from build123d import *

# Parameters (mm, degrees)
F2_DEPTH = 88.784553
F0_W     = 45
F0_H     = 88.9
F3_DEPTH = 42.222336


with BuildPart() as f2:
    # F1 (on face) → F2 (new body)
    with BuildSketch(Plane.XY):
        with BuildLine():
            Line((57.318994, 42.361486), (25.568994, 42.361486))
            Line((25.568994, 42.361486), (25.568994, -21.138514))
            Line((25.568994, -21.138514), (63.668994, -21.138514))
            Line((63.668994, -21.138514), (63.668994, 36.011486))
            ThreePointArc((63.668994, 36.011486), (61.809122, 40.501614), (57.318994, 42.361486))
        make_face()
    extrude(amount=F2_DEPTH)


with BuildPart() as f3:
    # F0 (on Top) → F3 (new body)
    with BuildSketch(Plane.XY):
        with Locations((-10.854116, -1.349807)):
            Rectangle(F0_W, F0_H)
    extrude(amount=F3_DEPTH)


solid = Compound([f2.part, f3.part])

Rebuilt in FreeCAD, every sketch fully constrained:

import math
import FreeCAD as App
import Part
import Sketcher
Q = App.Units.Quantity

doc = App.newDocument("Part")
body = doc.addObject("PartDesign::Body", "Body")

# Sketch on XY plane
sketch1 = body.newObject("Sketcher::SketchObject", "Sketch")
sketch1.AttachmentSupport = (doc.getObject("XY_Plane"), [""])
sketch1.MapMode = "FlatFace"
sketch1.addGeometry([
    Part.LineSegment(App.Vector(57, 42, 0), App.Vector(26, 42, 0)),  # 0
    Part.LineSegment(App.Vector(26, 42, 0), App.Vector(26, -21, 0)),  # 1
    Part.LineSegment(App.Vector(26, -21, 0), App.Vector(64, -21, 0)),  # 2
    Part.LineSegment(App.Vector(64, -21, 0), App.Vector(64, 36, 0)),  # 3
    Part.ArcOfCircle(Part.Circle(App.Vector(57, 36, 0), App.Vector(0, 0, 1), 6), math.radians(0), math.radians(90)),  # 4
], False)
sketch1.addConstraint([
    Sketcher.Constraint("Coincident", 0, 2, 1, 1),
    Sketcher.Constraint("Coincident", 1, 2, 2, 1),
    Sketcher.Constraint("Coincident", 2, 2, 3, 1),
    Sketcher.Constraint("Tangent", 3, 2, 4, 1),
    Sketcher.Constraint("Tangent", 4, 2, 0, 1),
    Sketcher.Constraint("Horizontal", 0),
    Sketcher.Constraint("Vertical", 1),
    Sketcher.Constraint("Horizontal", 2),
    Sketcher.Constraint("Vertical", 3),
    Sketcher.Constraint("Radius", 4, Q("0.25 in")),
    Sketcher.Constraint("DistanceX", 2, 1, 2, 2, Q("1.5 in")),
    Sketcher.Constraint("DistanceY", 1, 2, 1, 1, Q("2.5 in")),
    Sketcher.Constraint("DistanceX", -1, 1, 4, 3, Q("57.318994 mm")),
    Sketcher.Constraint("DistanceY", -1, 1, 4, 3, Q("36.011486 mm")),
])
pad1 = body.newObject("PartDesign::Pad", "Pad")
pad1.Profile = sketch1
pad1.Length = 88.784553
body2 = doc.addObject("PartDesign::Body", "Body001")

# Sketch on XY plane
sketch2 = body2.newObject("Sketcher::SketchObject", "Sketch001")
sketch2.AttachmentSupport = (doc.getObject("XY_Plane001"), [""])
sketch2.MapMode = "FlatFace"
sketch2.addGeometry([
    Part.LineSegment(App.Vector(-33, 43, 0), App.Vector(-33, -46, 0)),
    Part.LineSegment(App.Vector(-33, -46, 0), App.Vector(12, -46, 0)),
    Part.LineSegment(App.Vector(12, -46, 0), App.Vector(12, 43, 0)),
    Part.LineSegment(App.Vector(12, 43, 0), App.Vector(-33, 43, 0)),
], False)
sketch2.addConstraint([
    Sketcher.Constraint("Coincident", 0, 2, 1, 1),
    Sketcher.Constraint("Coincident", 1, 2, 2, 1),
    Sketcher.Constraint("Coincident", 2, 2, 3, 1),
    Sketcher.Constraint("Coincident", 3, 2, 0, 1),
    Sketcher.Constraint("Vertical", 0),
    Sketcher.Constraint("Horizontal", 1),
    Sketcher.Constraint("Vertical", 2),
    Sketcher.Constraint("Horizontal", 3),
    Sketcher.Constraint("DistanceY", 0, 2, 0, 1, Q("3.5 in")),
    Sketcher.Constraint("DistanceX", 1, 1, 1, 2, Q("45 mm")),
    Sketcher.Constraint("DistanceX", 0, 2, -1, 1, Q("33.354116 mm")),
    Sketcher.Constraint("DistanceY", 0, 2, -1, 1, Q("45.799807 mm")),
])
pad2 = body2.newObject("PartDesign::Pad", "Pad001")
pad2.Profile = sketch2
pad2.Length = 42.222336

doc.recompute()
